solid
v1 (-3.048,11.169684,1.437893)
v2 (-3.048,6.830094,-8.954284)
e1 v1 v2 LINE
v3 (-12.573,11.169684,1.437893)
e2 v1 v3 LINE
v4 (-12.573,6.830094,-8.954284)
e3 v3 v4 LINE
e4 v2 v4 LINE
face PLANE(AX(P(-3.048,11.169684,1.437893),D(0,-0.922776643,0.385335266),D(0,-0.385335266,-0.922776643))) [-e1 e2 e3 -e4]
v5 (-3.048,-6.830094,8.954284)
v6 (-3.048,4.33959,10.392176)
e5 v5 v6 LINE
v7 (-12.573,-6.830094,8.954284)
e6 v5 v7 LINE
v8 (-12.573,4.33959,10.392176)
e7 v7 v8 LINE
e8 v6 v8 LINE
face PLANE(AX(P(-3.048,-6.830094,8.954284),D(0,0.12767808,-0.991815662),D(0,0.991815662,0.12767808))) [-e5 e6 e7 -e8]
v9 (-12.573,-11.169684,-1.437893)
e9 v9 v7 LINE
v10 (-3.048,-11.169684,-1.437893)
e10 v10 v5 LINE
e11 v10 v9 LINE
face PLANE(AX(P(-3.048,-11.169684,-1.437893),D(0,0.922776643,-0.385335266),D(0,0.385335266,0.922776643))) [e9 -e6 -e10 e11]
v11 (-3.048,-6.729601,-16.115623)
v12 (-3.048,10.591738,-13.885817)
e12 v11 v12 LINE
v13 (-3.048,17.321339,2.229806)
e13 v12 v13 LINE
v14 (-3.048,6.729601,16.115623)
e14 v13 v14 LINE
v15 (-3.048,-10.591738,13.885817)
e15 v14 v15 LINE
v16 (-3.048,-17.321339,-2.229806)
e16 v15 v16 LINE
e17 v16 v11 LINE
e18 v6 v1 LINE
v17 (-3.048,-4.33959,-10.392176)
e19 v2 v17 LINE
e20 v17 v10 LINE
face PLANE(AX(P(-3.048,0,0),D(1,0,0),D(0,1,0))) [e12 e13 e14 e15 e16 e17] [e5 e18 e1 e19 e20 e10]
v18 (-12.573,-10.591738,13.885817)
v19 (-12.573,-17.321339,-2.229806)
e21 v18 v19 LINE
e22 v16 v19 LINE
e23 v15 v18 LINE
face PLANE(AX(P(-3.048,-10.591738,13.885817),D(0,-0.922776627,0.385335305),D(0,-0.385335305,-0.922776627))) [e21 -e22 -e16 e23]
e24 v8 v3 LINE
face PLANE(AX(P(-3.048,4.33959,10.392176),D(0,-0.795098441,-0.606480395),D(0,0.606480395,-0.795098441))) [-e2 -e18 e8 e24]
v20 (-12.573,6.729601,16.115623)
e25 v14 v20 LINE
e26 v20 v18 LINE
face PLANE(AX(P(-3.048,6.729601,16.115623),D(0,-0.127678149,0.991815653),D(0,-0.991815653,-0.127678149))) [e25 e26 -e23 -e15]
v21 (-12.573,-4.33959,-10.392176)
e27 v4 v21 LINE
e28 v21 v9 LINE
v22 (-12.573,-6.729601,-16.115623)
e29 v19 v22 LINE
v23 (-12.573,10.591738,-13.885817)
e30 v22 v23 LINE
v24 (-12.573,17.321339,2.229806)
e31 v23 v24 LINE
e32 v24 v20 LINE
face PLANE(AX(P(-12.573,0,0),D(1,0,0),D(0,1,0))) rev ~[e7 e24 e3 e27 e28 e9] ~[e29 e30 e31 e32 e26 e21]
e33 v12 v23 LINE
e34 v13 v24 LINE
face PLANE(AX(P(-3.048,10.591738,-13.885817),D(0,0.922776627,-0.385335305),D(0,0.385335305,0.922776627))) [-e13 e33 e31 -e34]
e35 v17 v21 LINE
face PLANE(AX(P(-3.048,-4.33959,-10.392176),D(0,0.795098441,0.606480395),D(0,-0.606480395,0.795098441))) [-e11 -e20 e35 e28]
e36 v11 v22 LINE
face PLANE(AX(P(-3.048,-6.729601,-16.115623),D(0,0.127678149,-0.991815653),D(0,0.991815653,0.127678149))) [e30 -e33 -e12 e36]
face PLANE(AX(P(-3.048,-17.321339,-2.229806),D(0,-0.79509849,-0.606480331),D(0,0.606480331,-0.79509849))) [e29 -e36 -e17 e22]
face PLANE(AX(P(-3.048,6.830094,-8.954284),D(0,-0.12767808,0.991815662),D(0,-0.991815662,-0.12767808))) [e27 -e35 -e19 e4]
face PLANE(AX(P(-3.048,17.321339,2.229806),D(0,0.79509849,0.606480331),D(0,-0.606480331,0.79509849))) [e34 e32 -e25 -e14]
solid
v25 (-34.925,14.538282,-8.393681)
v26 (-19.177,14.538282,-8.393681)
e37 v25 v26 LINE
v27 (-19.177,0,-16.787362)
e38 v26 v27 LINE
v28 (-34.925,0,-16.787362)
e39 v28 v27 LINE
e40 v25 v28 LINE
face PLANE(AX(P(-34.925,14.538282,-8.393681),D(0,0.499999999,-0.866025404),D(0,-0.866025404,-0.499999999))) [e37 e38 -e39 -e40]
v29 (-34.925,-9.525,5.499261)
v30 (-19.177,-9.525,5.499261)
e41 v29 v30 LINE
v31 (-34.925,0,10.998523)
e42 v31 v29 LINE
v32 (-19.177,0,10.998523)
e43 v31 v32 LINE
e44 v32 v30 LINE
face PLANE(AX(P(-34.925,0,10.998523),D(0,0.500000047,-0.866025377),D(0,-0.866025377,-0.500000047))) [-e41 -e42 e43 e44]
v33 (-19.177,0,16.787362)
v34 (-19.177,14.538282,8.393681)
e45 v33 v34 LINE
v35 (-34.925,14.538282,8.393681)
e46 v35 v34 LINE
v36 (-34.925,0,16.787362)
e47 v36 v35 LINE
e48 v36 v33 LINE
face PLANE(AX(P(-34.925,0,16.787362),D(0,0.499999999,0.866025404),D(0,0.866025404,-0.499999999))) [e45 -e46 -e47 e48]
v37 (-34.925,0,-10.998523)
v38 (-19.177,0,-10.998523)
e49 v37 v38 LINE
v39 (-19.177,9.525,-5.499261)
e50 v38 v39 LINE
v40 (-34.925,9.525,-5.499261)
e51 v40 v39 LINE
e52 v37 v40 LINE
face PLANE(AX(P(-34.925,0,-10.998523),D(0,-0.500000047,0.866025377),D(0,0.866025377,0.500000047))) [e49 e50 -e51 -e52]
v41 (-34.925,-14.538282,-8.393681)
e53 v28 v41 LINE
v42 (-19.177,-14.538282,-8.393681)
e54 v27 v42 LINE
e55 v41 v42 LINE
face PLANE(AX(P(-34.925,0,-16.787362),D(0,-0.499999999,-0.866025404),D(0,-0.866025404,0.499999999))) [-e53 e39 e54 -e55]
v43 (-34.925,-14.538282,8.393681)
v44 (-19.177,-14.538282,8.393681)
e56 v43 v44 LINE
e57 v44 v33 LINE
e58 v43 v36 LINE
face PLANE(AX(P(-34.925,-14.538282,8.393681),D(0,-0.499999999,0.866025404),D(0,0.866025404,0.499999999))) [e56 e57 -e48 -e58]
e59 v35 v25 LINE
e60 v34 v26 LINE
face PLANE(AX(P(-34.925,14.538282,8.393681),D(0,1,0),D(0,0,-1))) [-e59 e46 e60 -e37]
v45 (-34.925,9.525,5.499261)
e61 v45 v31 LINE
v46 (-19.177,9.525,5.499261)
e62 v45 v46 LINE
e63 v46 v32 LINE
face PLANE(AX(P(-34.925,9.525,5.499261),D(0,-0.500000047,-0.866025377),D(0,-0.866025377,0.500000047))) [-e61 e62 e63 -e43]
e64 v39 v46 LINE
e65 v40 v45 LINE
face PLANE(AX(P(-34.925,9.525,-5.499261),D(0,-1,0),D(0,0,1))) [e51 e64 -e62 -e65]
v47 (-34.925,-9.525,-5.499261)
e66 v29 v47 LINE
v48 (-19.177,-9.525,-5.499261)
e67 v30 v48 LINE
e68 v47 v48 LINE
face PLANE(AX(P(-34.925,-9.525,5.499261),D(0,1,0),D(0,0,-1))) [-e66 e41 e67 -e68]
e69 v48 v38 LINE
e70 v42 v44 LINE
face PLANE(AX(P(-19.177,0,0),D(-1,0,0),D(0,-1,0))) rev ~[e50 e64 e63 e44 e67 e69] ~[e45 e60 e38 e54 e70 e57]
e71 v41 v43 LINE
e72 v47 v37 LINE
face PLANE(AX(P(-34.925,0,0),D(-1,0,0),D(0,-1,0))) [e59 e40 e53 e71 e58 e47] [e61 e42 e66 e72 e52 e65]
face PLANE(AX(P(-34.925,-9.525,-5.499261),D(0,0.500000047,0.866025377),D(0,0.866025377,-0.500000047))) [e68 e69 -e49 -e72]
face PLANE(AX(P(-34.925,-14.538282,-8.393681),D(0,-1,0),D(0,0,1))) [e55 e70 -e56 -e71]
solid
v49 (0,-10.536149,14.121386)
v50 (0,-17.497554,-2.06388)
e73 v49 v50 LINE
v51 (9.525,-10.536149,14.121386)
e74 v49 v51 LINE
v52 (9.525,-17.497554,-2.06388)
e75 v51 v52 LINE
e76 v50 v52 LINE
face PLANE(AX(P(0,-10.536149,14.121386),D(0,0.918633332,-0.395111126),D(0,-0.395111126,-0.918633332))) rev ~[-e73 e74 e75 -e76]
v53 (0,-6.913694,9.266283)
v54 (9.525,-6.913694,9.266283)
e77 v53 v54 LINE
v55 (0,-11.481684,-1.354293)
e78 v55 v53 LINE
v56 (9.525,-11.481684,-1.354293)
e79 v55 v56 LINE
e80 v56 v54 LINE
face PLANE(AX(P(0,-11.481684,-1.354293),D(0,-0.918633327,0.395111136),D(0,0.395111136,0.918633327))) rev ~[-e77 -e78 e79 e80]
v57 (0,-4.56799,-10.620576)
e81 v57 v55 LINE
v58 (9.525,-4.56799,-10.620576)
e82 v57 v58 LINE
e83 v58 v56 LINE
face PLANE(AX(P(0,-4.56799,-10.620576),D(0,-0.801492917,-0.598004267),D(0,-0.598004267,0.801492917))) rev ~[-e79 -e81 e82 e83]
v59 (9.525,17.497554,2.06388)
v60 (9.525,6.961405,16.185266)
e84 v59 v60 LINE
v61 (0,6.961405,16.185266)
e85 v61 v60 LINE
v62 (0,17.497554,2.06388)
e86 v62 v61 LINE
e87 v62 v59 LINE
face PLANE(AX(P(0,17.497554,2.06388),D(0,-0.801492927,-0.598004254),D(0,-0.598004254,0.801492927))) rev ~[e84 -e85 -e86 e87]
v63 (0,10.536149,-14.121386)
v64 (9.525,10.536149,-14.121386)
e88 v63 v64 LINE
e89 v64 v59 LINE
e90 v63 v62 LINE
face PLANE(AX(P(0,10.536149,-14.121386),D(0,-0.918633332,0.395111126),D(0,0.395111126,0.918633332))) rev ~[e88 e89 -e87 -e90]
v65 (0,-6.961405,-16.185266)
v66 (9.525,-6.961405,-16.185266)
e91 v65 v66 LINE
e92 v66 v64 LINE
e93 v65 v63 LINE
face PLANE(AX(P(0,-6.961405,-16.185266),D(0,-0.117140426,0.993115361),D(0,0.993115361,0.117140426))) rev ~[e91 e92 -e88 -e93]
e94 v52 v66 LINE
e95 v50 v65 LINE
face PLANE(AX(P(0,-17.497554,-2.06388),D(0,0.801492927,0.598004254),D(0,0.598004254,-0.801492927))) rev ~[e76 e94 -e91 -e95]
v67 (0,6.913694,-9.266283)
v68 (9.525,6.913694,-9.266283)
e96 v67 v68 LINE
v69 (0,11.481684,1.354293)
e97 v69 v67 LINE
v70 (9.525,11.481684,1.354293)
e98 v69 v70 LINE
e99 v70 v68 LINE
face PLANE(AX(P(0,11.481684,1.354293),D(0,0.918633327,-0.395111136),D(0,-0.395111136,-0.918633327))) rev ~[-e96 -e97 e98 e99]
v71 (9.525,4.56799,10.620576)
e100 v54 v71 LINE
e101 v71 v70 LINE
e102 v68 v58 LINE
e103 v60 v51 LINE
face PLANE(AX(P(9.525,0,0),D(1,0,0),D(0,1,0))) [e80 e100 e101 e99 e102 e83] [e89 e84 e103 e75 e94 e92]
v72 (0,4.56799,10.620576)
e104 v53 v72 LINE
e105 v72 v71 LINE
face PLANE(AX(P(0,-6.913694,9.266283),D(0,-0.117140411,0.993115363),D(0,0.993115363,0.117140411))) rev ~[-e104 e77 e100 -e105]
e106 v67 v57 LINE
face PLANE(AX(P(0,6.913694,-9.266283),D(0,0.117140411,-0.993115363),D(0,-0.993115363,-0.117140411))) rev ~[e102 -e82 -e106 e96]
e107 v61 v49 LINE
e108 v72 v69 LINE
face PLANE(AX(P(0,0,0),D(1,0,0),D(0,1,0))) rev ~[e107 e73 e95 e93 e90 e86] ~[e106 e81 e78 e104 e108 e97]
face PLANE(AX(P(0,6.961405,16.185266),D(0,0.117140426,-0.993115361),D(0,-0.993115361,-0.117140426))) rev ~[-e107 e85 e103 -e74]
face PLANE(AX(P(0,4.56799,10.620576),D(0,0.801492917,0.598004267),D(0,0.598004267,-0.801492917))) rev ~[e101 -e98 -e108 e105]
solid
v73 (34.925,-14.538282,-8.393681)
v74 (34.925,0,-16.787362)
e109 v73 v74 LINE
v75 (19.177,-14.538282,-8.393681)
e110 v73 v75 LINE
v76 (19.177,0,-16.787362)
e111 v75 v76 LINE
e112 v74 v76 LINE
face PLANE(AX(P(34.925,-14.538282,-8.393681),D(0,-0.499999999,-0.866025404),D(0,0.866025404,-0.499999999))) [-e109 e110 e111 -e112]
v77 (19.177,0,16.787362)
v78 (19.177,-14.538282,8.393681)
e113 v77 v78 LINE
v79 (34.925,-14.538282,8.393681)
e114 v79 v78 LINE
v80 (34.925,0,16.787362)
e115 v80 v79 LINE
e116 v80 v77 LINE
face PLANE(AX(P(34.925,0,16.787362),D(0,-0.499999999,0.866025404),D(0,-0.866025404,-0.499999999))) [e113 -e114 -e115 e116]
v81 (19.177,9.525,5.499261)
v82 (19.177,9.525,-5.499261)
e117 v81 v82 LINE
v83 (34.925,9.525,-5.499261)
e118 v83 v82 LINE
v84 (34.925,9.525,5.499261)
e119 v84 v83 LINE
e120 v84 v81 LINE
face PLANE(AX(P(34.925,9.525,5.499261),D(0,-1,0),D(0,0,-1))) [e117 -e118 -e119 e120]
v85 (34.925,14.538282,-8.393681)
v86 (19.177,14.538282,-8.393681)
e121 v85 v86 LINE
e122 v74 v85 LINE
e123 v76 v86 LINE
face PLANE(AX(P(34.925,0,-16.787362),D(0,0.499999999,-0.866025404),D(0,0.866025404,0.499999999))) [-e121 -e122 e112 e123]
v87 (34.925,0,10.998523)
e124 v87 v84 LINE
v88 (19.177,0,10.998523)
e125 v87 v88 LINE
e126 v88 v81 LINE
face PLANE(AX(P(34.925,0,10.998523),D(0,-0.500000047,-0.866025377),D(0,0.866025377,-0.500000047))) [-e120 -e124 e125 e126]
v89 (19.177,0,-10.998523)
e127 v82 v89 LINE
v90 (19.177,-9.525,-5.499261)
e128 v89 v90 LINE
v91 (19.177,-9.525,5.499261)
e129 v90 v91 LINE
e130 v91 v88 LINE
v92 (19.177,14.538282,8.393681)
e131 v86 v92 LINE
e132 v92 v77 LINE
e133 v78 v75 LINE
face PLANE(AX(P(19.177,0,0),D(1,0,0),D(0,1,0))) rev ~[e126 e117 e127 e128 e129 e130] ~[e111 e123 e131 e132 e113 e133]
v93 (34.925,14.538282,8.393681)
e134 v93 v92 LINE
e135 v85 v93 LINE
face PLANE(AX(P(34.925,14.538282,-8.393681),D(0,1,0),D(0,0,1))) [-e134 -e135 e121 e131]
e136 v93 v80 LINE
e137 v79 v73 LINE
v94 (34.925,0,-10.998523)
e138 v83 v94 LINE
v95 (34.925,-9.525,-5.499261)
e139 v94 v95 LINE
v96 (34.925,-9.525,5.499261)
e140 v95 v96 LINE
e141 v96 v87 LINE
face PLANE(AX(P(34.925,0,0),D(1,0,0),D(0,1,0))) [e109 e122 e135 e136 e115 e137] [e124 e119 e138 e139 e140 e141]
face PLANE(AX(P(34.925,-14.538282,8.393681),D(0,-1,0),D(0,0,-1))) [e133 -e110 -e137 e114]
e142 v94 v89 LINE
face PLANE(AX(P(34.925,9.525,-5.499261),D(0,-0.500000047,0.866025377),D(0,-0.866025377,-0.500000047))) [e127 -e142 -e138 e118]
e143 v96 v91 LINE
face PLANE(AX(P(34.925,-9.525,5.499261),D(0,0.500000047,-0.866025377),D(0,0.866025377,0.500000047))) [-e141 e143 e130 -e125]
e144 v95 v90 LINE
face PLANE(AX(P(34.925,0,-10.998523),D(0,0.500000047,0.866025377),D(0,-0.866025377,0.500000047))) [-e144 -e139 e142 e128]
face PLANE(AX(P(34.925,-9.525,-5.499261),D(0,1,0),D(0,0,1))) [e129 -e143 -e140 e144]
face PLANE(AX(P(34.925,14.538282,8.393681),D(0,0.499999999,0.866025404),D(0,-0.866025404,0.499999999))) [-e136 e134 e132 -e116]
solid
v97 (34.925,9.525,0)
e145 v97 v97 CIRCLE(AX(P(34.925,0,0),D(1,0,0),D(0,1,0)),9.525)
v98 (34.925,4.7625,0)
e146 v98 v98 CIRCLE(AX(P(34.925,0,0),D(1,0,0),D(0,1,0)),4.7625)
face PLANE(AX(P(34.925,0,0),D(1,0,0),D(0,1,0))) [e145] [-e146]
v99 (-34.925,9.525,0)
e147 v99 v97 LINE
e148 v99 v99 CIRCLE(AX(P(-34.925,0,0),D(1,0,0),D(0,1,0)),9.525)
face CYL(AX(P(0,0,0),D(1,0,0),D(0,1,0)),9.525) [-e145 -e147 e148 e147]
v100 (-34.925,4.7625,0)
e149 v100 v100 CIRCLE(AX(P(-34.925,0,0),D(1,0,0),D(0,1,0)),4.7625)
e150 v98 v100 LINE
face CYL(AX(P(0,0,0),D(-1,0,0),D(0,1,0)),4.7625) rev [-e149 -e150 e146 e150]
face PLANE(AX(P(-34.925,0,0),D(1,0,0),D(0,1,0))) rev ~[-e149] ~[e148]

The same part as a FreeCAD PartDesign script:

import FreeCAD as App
import Part
import Sketcher
from FreeCAD import Vector
Q = App.Units.Quantity


def add_polygon(sketch, points):
    """Adds a closed chain of lines whose ends are joined by coincident constraints."""
    first, n = sketch.GeometryCount, len(points)
    for a, b in zip(points, points[1:] + points[:1]):
        sketch.addGeometry(Part.LineSegment(App.Vector(*a, 0), App.Vector(*b, 0)), False)
    for i in range(n):
        sketch.addConstraint(Sketcher.Constraint("Coincident", first + i, 2, first + (i + 1) % n, 1))

doc = App.newDocument("Part")
body = doc.addObject("PartDesign::Body", "Body")

sketch1 = doc.addObject("Sketcher::SketchObject", "Sketch")
body.addObject(sketch1)
sketch1.AttachmentSupport = (doc.YZ_Plane, [""])
sketch1.MapMode = "FlatFace"
sketch1.addGeometry([
    Part.Circle(Vector(0, 0, 0), Vector(0, 0, 1), 9.5),
    Part.Circle(Vector(0, 0, 0), Vector(0, 0, 1), 4.8),
], False)
sketch1.addConstraint([
    Sketcher.Constraint("Coincident", 0, 3, -1, 1),
    Sketcher.Constraint("Coincident", 1, 3, -1, 1),
    Sketcher.Constraint("Diameter", 0, Q("0.75 in")),
    Sketcher.Constraint("Diameter", 1, Q("0.375 in")),
])
pad1 = doc.addObject("PartDesign::Pad", "Pad")
body.addObject(pad1)
pad1.Profile = sketch1
pad1.Length = Q("2.75 in")
pad1.Midplane = True
body2 = doc.addObject("PartDesign::Body", "Body001")

sketch2 = doc.addObject("Sketcher::SketchObject", "Sketch001")
body2.addObject(sketch2)
sketch2.AttachmentSupport = (doc.getObject("YZ_Plane001"), [""])
sketch2.MapMode = "FlatFace"
add_polygon(sketch2, [(11, -14), (17, 2), (7, 16), (-11, 14), (-17, -2), (-7, -16)])
add_polygon(sketch2, [(-7, 9), (5, 11), (11, 1), (7, -9), (-5, -11), (-11, -1)])
sketch2.addConstraint([
    Sketcher.Constraint("Symmetric", 0, 2, 3, 2, -1, 1),
    Sketcher.Constraint("Symmetric", 1, 2, 4, 2, -1, 1),
    Sketcher.Constraint("Symmetric", 2, 2, 5, 2, -1, 1),
    Sketcher.Constraint("Symmetric", 6, 2, 9, 2, -1, 1),
    Sketcher.Constraint("Symmetric", 7, 2, 10, 2, -1, 1),
    Sketcher.Constraint("Symmetric", 8, 2, 11, 2, -1, 1),
    Sketcher.Constraint("Parallel", 5, 6),
    Sketcher.Constraint("Parallel", 4, 7),
    Sketcher.Constraint("Parallel", 3, 8),
    Sketcher.Constraint("Equal", 0, 1),
    Sketcher.Constraint("Equal", 1, 2),
    Sketcher.Constraint("Equal", 6, 7),
    Sketcher.Constraint("Equal", 7, 8),
    Sketcher.Constraint("DistanceX", 2, 2, 5, 2, Q("21.072298 mm")),
    Sketcher.Constraint("DistanceX", 4, 2, 8, 2, Q("13.875099 mm")),
    Sketcher.Constraint("Distance", 6, Q("11.561279 mm")),
    Sketcher.Constraint("DistanceY", -1, 1, 0, 2, Q("2.06388 mm")),
    Sketcher.Constraint("DistanceX", 1, 2, 0, 2, Q("10.536149 mm")),
])
pad2 = doc.addObject("PartDesign::Pad", "Pad001")
body2.addObject(pad2)
pad2.Profile = sketch2
pad2.Length = Q("0.375 in")
body3 = doc.addObject("PartDesign::Body", "Body002")

sketch3 = doc.addObject("Sketcher::SketchObject", "Sketch002")
body3.addObject(sketch3)
sketch3.AttachmentSupport = (doc.getObject("YZ_Plane002"), [""])
sketch3.MapMode = "FlatFace"
sketch3.AttachmentOffset = App.Placement(Vector(0, 0, -0.12 * 25.4), App.Rotation())
add_polygon(sketch3, [(-11, 14), (-17, -2), (-7, -16), (11, -14), (17, 2), (7, 16)])
add_polygon(sketch3, [(7, -9), (-4, -10), (-11, -1), (-7, 9), (4, 10), (11, 1)])
sketch3.addConstraint([
    Sketcher.Constraint("Symmetric", 0, 2, 3, 2, -1, 1),
    Sketcher.Constraint("Symmetric", 1, 2, 4, 2, -1, 1),
    Sketcher.Constraint("Symmetric", 2, 2, 5, 2, -1, 1),
    Sketcher.Constraint("Symmetric", 6, 2, 9, 2, -1, 1),
    Sketcher.Constraint("Symmetric", 7, 2, 10, 2, -1, 1),
    Sketcher.Constraint("Symmetric", 8, 2, 11, 2, -1, 1),
    Sketcher.Constraint("Parallel", 5, 6),
    Sketcher.Constraint("Parallel", 4, 7),
    Sketcher.Constraint("Parallel", 3, 8),
    Sketcher.Constraint("Equal", 0, 1),
    Sketcher.Constraint("Equal", 1, 2),
    Sketcher.Constraint("Equal", 6, 7),
    Sketcher.Constraint("Equal", 7, 8),
    Sketcher.Constraint("DistanceX", 1, 2, -1, 1, Q("6.729601 mm")),
    Sketcher.Constraint("DistanceX", 2, 2, 3, 2, Q("6.729601 mm")),
    Sketcher.Constraint("DistanceX", 0, 2, -1, 1, Q("17.321339 mm")),
    Sketcher.Constraint("DistanceX", 6, 2, -1, 1, Q("4.33959 mm")),
    Sketcher.Constraint("DistanceY", 2, 2, 0, 2, Q("11.656011 mm")),
])
pad3 = doc.addObject("PartDesign::Pad", "Pad002")
body3.addObject(pad3)
pad3.Profile = sketch3
pad3.Length = Q("0.375 in")
pad3.Reversed = True
body4 = doc.addObject("PartDesign::Body", "Body003")

sketch4 = doc.addObject("Sketcher::SketchObject", "Sketch003")
body4.addObject(sketch4)
sketch4.AttachmentSupport = (doc.getObject("YZ_Plane003"), [""])
sketch4.MapMode = "FlatFace"
sketch4.AttachmentOffset = App.Placement(Vector(0, 0, 1.375 * 25.4), App.Rotation())
add_polygon(sketch4, [(15, -8), (15, 8), (0, 17), (-15, 8), (-15, -8), (0, -17)])
add_polygon(sketch4, [(-10, 5), (0, 11), (10, 5), (10, -5), (0, -11), (-10, -5)])
sketch4.addConstraint([
    Sketcher.Constraint("Vertical", 0),
    Sketcher.Constraint("Vertical", 3),
    Sketcher.Constraint("Vertical", 8),
    Sketcher.Constraint("Vertical", 11),
    Sketcher.Constraint("Symmetric", 0, 2, 3, 2, -1, 1),
    Sketcher.Constraint("Symmetric", 1, 2, 4, 2, -1, 1),
    Sketcher.Constraint("Symmetric", 6, 2, 9, 2, -1, 1),
    Sketcher.Constraint("Symmetric", 7, 2, 10, 2, -1, 1),
    Sketcher.Constraint("PointOnObject", 1, 2, -2),
    Sketcher.Constraint("PointOnObject", 6, 2, -2),
    Sketcher.Constraint("Parallel", 2, 5),
    Sketcher.Constraint("Parallel", 5, 6),
    Sketcher.Constraint("Parallel", 4, 7),
    Sketcher.Constraint("Parallel", 6, 9),
    Sketcher.Constraint("Horizontal", 0, 2, 2, 2),
    Sketcher.Constraint("Angle", 1, Q("150 deg")),
    Sketcher.Constraint("DistanceX", 10, 2, 8, 2, Q("0.75 in")),
    Sketcher.Constraint("DistanceY", 7, 2, 1, 2, Q("11.288101 mm")),
    Sketcher.Constraint("DistanceY", 0, 1, 0, 2, Q("16.787362 mm")),
    Sketcher.Constraint("DistanceY", 8, 2, 8, 1, Q("10.998522 mm")),
])
pad4 = doc.addObject("PartDesign::Pad", "Pad003")
body4.addObject(pad4)
pad4.Profile = sketch4
pad4.Length = Q("0.62 in")
pad4.Reversed = True
body5 = doc.addObject("PartDesign::Body", "Body004")

sketch5 = doc.addObject("Sketcher::SketchObject", "Sketch004")
body5.addObject(sketch5)
sketch5.AttachmentSupport = (doc.getObject("YZ_Plane004"), [""])
sketch5.MapMode = "FlatFace"
sketch5.AttachmentOffset = App.Placement(Vector(0, 0, -1.375 * 25.4), App.Rotation())
add_polygon(sketch5, [(-15, -8), (-15, 8), (0, 17), (15, 8), (15, -8), (0, -17)])
add_polygon(sketch5, [(10, 5), (0, 11), (-10, 5), (-10, -5), (0, -11), (10, -5)])
sketch5.addConstraint([
    Sketcher.Constraint("Vertical", 0),
    Sketcher.Constraint("Vertical", 3),
    Sketcher.Constraint("Vertical", 8),
    Sketcher.Constraint("Vertical", 11),
    Sketcher.Constraint("Symmetric", 0, 2, 3, 2, -1, 1),
    Sketcher.Constraint("Symmetric", 1, 2, 4, 2, -1, 1),
    Sketcher.Constraint("Symmetric", 6, 2, 9, 2, -1, 1),
    Sketcher.Constraint("Symmetric", 7, 2, 10, 2, -1, 1),
    Sketcher.Constraint("PointOnObject", 1, 2, -2),
    Sketcher.Constraint("PointOnObject", 6, 2, -2),
    Sketcher.Constraint("Parallel", 2, 5),
    Sketcher.Constraint("Parallel", 5, 6),
    Sketcher.Constraint("Parallel", 4, 7),
    Sketcher.Constraint("Parallel", 6, 9),
    Sketcher.Constraint("Horizontal", 0, 2, 2, 2),
    Sketcher.Constraint("Angle", 1, Q("30 deg")),
    Sketcher.Constraint("DistanceX", 8, 2, 10, 2, Q("0.75 in")),
    Sketcher.Constraint("DistanceY", 7, 2, 1, 2, Q("11.288101 mm")),
    Sketcher.Constraint("DistanceY", 0, 1, 0, 2, Q("16.787362 mm")),
    Sketcher.Constraint("DistanceY", 8, 2, 8, 1, Q("10.998522 mm")),
])
pad5 = doc.addObject("PartDesign::Pad", "Pad004")
body5.addObject(pad5)
pad5.Profile = sketch5
pad5.Length = Q("0.62 in")

doc.recompute()
